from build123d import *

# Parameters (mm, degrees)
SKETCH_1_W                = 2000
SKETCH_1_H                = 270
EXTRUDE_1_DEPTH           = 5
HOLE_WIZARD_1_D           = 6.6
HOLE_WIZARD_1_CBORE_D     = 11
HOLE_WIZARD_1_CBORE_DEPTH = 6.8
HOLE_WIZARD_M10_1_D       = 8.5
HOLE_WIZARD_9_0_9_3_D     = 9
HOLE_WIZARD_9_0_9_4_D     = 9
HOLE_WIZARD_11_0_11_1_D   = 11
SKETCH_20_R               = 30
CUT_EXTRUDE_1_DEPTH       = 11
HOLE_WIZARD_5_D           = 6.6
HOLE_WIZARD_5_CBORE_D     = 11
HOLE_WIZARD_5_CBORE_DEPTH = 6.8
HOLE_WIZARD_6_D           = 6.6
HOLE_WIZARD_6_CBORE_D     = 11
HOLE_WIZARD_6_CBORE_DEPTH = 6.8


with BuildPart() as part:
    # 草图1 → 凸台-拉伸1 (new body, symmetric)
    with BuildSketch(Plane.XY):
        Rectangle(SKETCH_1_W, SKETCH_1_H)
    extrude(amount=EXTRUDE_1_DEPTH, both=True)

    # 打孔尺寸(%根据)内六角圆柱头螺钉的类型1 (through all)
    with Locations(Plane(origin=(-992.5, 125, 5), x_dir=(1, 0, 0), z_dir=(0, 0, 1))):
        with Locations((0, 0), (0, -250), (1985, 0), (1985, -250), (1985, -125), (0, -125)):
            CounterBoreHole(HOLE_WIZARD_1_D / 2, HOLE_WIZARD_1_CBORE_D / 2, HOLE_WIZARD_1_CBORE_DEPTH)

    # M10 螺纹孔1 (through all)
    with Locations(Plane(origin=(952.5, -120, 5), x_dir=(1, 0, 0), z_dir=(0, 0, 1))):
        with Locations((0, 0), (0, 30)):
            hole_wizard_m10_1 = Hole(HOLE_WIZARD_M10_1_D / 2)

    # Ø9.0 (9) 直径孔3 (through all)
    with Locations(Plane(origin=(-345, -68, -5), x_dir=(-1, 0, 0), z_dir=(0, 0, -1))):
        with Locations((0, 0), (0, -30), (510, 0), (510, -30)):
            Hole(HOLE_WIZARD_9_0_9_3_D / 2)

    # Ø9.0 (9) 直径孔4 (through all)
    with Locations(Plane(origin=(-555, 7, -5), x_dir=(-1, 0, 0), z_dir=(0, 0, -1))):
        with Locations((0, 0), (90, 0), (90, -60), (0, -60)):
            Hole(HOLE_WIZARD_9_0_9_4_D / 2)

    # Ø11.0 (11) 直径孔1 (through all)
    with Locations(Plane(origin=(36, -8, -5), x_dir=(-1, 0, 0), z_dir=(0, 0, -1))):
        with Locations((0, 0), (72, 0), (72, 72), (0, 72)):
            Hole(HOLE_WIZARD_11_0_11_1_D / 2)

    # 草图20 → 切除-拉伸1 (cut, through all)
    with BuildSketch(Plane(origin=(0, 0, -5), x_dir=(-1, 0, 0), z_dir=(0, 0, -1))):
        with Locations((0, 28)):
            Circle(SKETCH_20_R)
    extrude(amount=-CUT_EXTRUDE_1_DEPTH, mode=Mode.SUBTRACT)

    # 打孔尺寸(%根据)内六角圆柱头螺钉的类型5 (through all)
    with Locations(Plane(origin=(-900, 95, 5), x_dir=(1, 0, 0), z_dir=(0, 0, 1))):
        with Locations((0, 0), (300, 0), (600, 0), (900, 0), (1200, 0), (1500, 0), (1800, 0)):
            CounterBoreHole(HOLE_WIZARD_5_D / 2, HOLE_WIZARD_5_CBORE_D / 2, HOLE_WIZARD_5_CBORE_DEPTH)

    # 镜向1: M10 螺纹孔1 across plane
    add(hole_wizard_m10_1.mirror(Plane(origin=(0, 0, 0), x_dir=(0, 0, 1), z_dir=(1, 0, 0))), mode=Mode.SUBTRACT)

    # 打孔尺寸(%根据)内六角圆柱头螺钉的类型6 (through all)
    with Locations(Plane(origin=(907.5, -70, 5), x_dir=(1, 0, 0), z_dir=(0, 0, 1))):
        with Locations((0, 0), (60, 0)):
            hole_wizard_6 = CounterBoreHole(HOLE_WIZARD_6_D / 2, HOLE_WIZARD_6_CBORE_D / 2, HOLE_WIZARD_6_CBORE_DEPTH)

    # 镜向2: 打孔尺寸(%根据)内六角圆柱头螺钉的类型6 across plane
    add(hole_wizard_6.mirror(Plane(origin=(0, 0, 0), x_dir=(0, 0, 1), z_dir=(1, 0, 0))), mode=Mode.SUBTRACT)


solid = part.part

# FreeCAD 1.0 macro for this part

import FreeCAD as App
import Part
import Sketcher
Q = App.Units.Quantity


def add_polygon(sketch, points):
    """Adds a closed chain of lines whose ends are joined by coincident constraints."""
    first, n = sketch.GeometryCount, len(points)
    for a, b in zip(points, points[1:] + points[:1]):
        sketch.addGeometry(Part.LineSegment(App.Vector(*a, 0), App.Vector(*b, 0)), False)
    for i in range(n):
        sketch.addConstraint(Sketcher.Constraint("Coincident", first + i, 2, first + (i + 1) % n, 1))

doc = App.newDocument("Part")
params = doc.addObject("Spreadsheet::Sheet", "Params")
for row, (alias, value) in enumerate([
    ("sketch1_width", "2000 mm"),
    ("sketch1_height", "270 mm"),
    ("pad1_length", "10 mm"),
    ("sketch2_diameter", "6.6 mm"),
    ("hole_diameter", "6.6 mm"),
    ("hole_cbore_diameter", "11 mm"),
    ("hole_cbore_depth", "6.8 mm"),
    ("sketch3_diameter", "8.5 mm"),
    ("hole2_diameter", "8.5 mm"),
    ("sketch4_diameter", "9 mm"),
    ("hole3_diameter", "9 mm"),
    ("sketch5_diameter", "9 mm"),
    ("hole4_diameter", "9 mm"),
    ("sketch6_diameter", "11 mm"),
    ("hole5_diameter", "11 mm"),
    ("sketch7_diameter", "60 mm"),
    ("sketch8_diameter", "6.6 mm"),
    ("hole6_diameter", "6.6 mm"),
    ("hole6_cbore_diameter", "11 mm"),
    ("hole6_cbore_depth", "6.8 mm"),
    ("sketch9_diameter", "6.6 mm"),
    ("hole7_diameter", "6.6 mm"),
    ("hole7_cbore_diameter", "11 mm"),
    ("hole7_cbore_depth", "6.8 mm"),
], start=1):
    params.set(f"A{row}", alias)
    params.set(f"B{row}", "=" + value)
    params.setAlias(f"B{row}", alias)

body = doc.addObject("PartDesign::Body", "Body")

# Sketch on XY plane
sketch1 = doc.addObject("Sketcher::SketchObject", "Sketch")
body.addObject(sketch1)
sketch1.AttachmentSupport = (doc.XY_Plane, [""])
sketch1.MapMode = "FlatFace"
add_polygon(sketch1, [(-1000, 135), (-1000, -135), (1000, -135), (1000, 135)])  # lines 0-3
sketch1.addConstraint([
    Sketcher.Constraint("Vertical", 0),
    Sketcher.Constraint("Horizontal", 1),
    Sketcher.Constraint("Vertical", 2),
    Sketcher.Constraint("Horizontal", 3),
    Sketcher.Constraint("Symmetric", 0, 2, 2, 2, -1, 1),
    Sketcher.Constraint("DistanceX", 1, 1, 1, 2, Q("2000 mm")),
    Sketcher.Constraint("DistanceY", 0, 2, 0, 1, Q("270 mm")),
])
sketch1.setExpression("Constraints[9]", "Params.sketch1_width")
sketch1.setExpression("Constraints[10]", "Params.sketch1_height")
pad1 = doc.addObject("PartDesign::Pad", "Pad")
body.addObject(pad1)
pad1.Profile = sketch1
pad1.setExpression("Length", "Params.pad1_length")
pad1.Midplane = True

# Sketch on XY plane
sketch2 = doc.addObject("Sketcher::SketchObject", "Sketch001")
body.addObject(sketch2)
sketch2.AttachmentSupport = (doc.XY_Plane, [""])
sketch2.MapMode = "FlatFace"
sketch2.AttachmentOffset = App.Placement(App.Vector(0, 0, 5), App.Rotation())
sketch2.addGeometry([
    Part.Circle(App.Vector(-992.5, 125, 0), App.Vector(0, 0, 1), 3.3),  # 0
    Part.Circle(App.Vector(-992.5, -125, 0), App.Vector(0, 0, 1), 3.3),  # 1
    Part.Circle(App.Vector(992.5, 125, 0), App.Vector(0, 0, 1), 3.3),  # 2
    Part.Circle(App.Vector(992.5, -125, 0), App.Vector(0, 0, 1), 3.3),  # 3
    Part.Circle(App.Vector(992.5, 0, 0), App.Vector(0, 0, 1), 3.3),  # 4
    Part.Circle(App.Vector(-992.5, 0, 0), App.Vector(0, 0, 1), 3.3),  # 5
], False)
sketch2.addConstraint([
    Sketcher.Constraint("Equal", 0, 1),
    Sketcher.Constraint("Equal", 1, 2),
    Sketcher.Constraint("Equal", 2, 3),
    Sketcher.Constraint("Equal", 3, 4),
    Sketcher.Constraint("Equal", 4, 5),
    Sketcher.Constraint("Symmetric", 1, 3, 2, 3, -1, 1),
    Sketcher.Constraint("Symmetric", 0, 3, 3, 3, -1, 1),
    Sketcher.Constraint("Symmetric", 4, 3, 5, 3, -1, 1),
    Sketcher.Constraint("Symmetric", 0, 3, 2, 3, -2),
    Sketcher.Constraint("PointOnObject", 4, 3, -1),
    Sketcher.Constraint("Vertical", 3, 3, 4, 3),
    Sketcher.Constraint("Diameter", 0, Q("6.6 mm")),
    Sketcher.Constraint("DistanceY", -1, 1, 0, 3, Q("125 mm")),
    Sketcher.Constraint("DistanceX", 0, 3, 2, 3, Q("1985 mm")),
])
sketch2.setExpression("Constraints[11]", "Params.sketch2_diameter")
doc.recompute()
hole = doc.addObject("PartDesign::Hole", "Hole")
body.addObject(hole)
hole.Profile = sketch2
hole.ThreadType = "None"
hole.setExpression("Diameter", "Params.hole_diameter")
hole.DepthType = "ThroughAll"
hole.HoleCutType = "Counterbore"
hole.setExpression("HoleCutDiameter", "Params.hole_cbore_diameter")
hole.setExpression("HoleCutDepth", "Params.hole_cbore_depth")

# Sketch on XY plane
sketch3 = doc.addObject("Sketcher::SketchObject", "Sketch002")
body.addObject(sketch3)
sketch3.AttachmentSupport = (doc.XY_Plane, [""])
sketch3.MapMode = "FlatFace"
sketch3.AttachmentOffset = App.Placement(App.Vector(0, 0, 5), App.Rotation())
sketch3.addGeometry([
    Part.Circle(App.Vector(952.5, -120, 0), App.Vector(0, 0, 1), 4.2),
    Part.Circle(App.Vector(952.5, -90, 0), App.Vector(0, 0, 1), 4.2),
], False)
sketch3.addConstraint([
    Sketcher.Constraint("Equal", 0, 1),
    Sketcher.Constraint("Vertical", 0, 3, 1, 3),
    Sketcher.Constraint("Diameter", 0, Q("8.5 mm")),
    Sketcher.Constraint("DistanceY", 0, 3, -1, 1, Q("120 mm")),
    Sketcher.Constraint("DistanceY", 1, 3, -1, 1, Q("90 mm")),
    Sketcher.Constraint("DistanceX", -1, 1, 0, 3, Q("952.5 mm")),
])
sketch3.setExpression("Constraints[2]", "Params.sketch3_diameter")
doc.recompute()
hole2 = doc.addObject("PartDesign::Hole", "Hole001")
body.addObject(hole2)
hole2.Profile = sketch3
hole2.ThreadType = "None"
hole2.setExpression("Diameter", "Params.hole2_diameter")
hole2.DepthType = "ThroughAll"

# Sketch on XY plane
sketch4 = doc.addObject("Sketcher::SketchObject", "Sketch003")
body.addObject(sketch4)
sketch4.AttachmentSupport = (doc.XY_Plane, [""])
sketch4.MapMode = "FlatFace"
sketch4.AttachmentOffset = App.Placement(App.Vector(0, 0, -5), App.Rotation())
sketch4.addGeometry([
    Part.Circle(App.Vector(-345, -68, 0), App.Vector(0, 0, 1), 4.5),
    Part.Circle(App.Vector(-345, -98, 0), App.Vector(0, 0, 1), 4.5),
    Part.Circle(App.Vector(-855, -68, 0), App.Vector(0, 0, 1), 4.5),
    Part.Circle(App.Vector(-855, -98, 0), App.Vector(0, 0, 1), 4.5),
], False)
sketch4.addConstraint([
    Sketcher.Constraint("Equal", 0, 1),
    Sketcher.Constraint("Equal", 1, 2),
    Sketcher.Constraint("Equal", 2, 3),
    Sketcher.Constraint("Horizontal", 0, 3, 2, 3),
    Sketcher.Constraint("Horizontal", 1, 3, 3, 3),
    Sketcher.Constraint("Vertical", 0, 3, 1, 3),
    Sketcher.Constraint("Vertical", 2, 3, 3, 3),
    Sketcher.Constraint("Diameter", 0, Q("9 mm")),
    Sketcher.Constraint("DistanceX", 0, 3, -1, 1, Q("345 mm")),
    Sketcher.Constraint("DistanceY", 0, 3, -1, 1, Q("68 mm")),
    Sketcher.Constraint("DistanceY", 1, 3, -1, 1, Q("98 mm")),
    Sketcher.Constraint("DistanceX", 2, 3, -1, 1, Q("855 mm")),
])
sketch4.setExpression("Constraints[7]", "Params.sketch4_diameter")
doc.recompute()
hole3 = doc.addObject("PartDesign::Hole", "Hole002")
body.addObject(hole3)
hole3.Profile = sketch4
hole3.ThreadType = "None"
hole3.setExpression("Diameter", "Params.hole3_diameter")
hole3.DepthType = "ThroughAll"
hole3.Reversed = True

# Sketch on XY plane
sketch5 = doc.addObject("Sketcher::SketchObject", "Sketch004")
body.addObject(sketch5)
sketch5.AttachmentSupport = (doc.XY_Plane, [""])
sketch5.MapMode = "FlatFace"
sketch5.AttachmentOffset = App.Placement(App.Vector(0, 0, -5), App.Rotation())
sketch5.addGeometry([
    Part.Circle(App.Vector(-555, 7, 0), App.Vector(0, 0, 1), 4.5),
    Part.Circle(App.Vector(-645, 7, 0), App.Vector(0, 0, 1), 4.5),
    Part.Circle(App.Vector(-645, -53, 0), App.Vector(0, 0, 1), 4.5),
    Part.Circle(App.Vector(-555, -53, 0), App.Vector(0, 0, 1), 4.5),
], False)
sketch5.addConstraint([
    Sketcher.Constraint("Equal", 0, 1),
    Sketcher.Constraint("Equal", 1, 2),
    Sketcher.Constraint("Equal", 2, 3),
    Sketcher.Constraint("Horizontal", 0, 3, 1, 3),
    Sketcher.Constraint("Horizontal", 2, 3, 3, 3),
    Sketcher.Constraint("Vertical", 1, 3, 2, 3),
    Sketcher.Constraint("Vertical", 0, 3, 3, 3),
    Sketcher.Constraint("Diameter", 0, Q("9 mm")),
    Sketcher.Constraint("DistanceX", 0, 3, -1, 1, Q("555 mm")),
    Sketcher.Constraint("DistanceY", -1, 1, 0, 3, Q("7 mm")),
    Sketcher.Constraint("DistanceX", 1, 3, -1, 1, Q("645 mm")),
    Sketcher.Constraint("DistanceY", 2, 3, -1, 1, Q("53 mm")),
])
sketch5.setExpression("Constraints[7]", "Params.sketch5_diameter")
doc.recompute()
hole4 = doc.addObject("PartDesign::Hole", "Hole003")
body.addObject(hole4)
hole4.Profile = sketch5
hole4.ThreadType = "None"
hole4.setExpression("Diameter", "Params.hole4_diameter")
hole4.DepthType = "ThroughAll"
hole4.Reversed = True

# Sketch on XY plane
sketch6 = doc.addObject("Sketcher::SketchObject", "Sketch005")
body.addObject(sketch6)
sketch6.AttachmentSupport = (doc.XY_Plane, [""])
sketch6.MapMode = "FlatFace"
sketch6.AttachmentOffset = App.Placement(App.Vector(0, 0, -5), App.Rotation())
sketch6.addGeometry([
    Part.Circle(App.Vector(36, -8, 0), App.Vector(0, 0, 1), 6),
    Part.Circle(App.Vector(-36, -8, 0), App.Vector(0, 0, 1), 6),
    Part.Circle(App.Vector(-36, 64, 0), App.Vector(0, 0, 1), 6),
    Part.Circle(App.Vector(36, 64, 0), App.Vector(0, 0, 1), 6),
], False)
sketch6.addConstraint([
    Sketcher.Constraint("Equal", 0, 1),
    Sketcher.Constraint("Equal", 1, 2),
    Sketcher.Constraint("Equal", 2, 3),
    Sketcher.Constraint("Symmetric", 0, 3, 1, 3, -2),
    Sketcher.Constraint("Symmetric", 2, 3, 3, 3, -2),
    Sketcher.Constraint("Vertical", 1, 3, 2, 3),
    Sketcher.Constraint("Diameter", 0, Q("11 mm")),
    Sketcher.Constraint("DistanceX", -1, 1, 0, 3, Q("36 mm")),
    Sketcher.Constraint("DistanceY", 0, 3, -1, 1, Q("8 mm")),
    Sketcher.Constraint("DistanceY", -1, 1, 2, 3, Q("64 mm")),
])
sketch6.setExpression("Constraints[6]", "Params.sketch6_diameter")
doc.recompute()
hole5 = doc.addObject("PartDesign::Hole", "Hole004")
body.addObject(hole5)
hole5.Profile = sketch6
hole5.ThreadType = "None"
hole5.setExpression("Diameter", "Params.hole5_diameter")
hole5.DepthType = "ThroughAll"
hole5.Reversed = True

# Sketch on XY plane
sketch7 = doc.addObject("Sketcher::SketchObject", "Sketch006")
body.addObject(sketch7)
sketch7.AttachmentSupport = (doc.XY_Plane, [""])
sketch7.MapMode = "FlatFace"
sketch7.AttachmentOffset = App.Placement(App.Vector(0, 0, -5), App.Rotation())
sketch7.addGeometry(Part.Circle(App.Vector(0, 28, 0), App.Vector(0, 0, 1), 30), False)
sketch7.addConstraint([
    Sketcher.Constraint("PointOnObject", 0, 3, -2),
    Sketcher.Constraint("Diameter", 0, Q("60 mm")),
    Sketcher.Constraint("DistanceY", -1, 1, 0, 3, Q("28 mm")),
])
sketch7.setExpression("Constraints[1]", "Params.sketch7_diameter")
pocket1 = doc.addObject("PartDesign::Pocket", "Pocket")
body.addObject(pocket1)
pocket1.Profile = sketch7
pocket1.Type = "ThroughAll"
pocket1.Reversed = True

# Sketch on XY plane
sketch8 = doc.addObject("Sketcher::SketchObject", "Sketch007")
body.addObject(sketch8)
sketch8.AttachmentSupport = (doc.XY_Plane, [""])
sketch8.MapMode = "FlatFace"
sketch8.AttachmentOffset = App.Placement(App.Vector(0, 0, 5), App.Rotation())
sketch8.addGeometry([
    Part.Circle(App.Vector(-900, 95, 0), App.Vector(0, 0, 1), 3.3),  # 0
    Part.Circle(App.Vector(-600, 95, 0), App.Vector(0, 0, 1), 3.3),  # 1
    Part.Circle(App.Vector(-300, 95, 0), App.Vector(0, 0, 1), 3.3),  # 2
    Part.Circle(App.Vector(0, 95, 0), App.Vector(0, 0, 1), 3.3),  # 3
    Part.Circle(App.Vector(300, 95, 0), App.Vector(0, 0, 1), 3.3),  # 4
    Part.Circle(App.Vector(600, 95, 0), App.Vector(0, 0, 1), 3.3),  # 5
    Part.Circle(App.Vector(900, 95, 0), App.Vector(0, 0, 1), 3.3),  # 6
], False)
sketch8.addConstraint([
    Sketcher.Constraint("Equal", 0, 1),
    Sketcher.Constraint("Equal", 1, 2),
    Sketcher.Constraint("Equal", 2, 3),
    Sketcher.Constraint("Equal", 3, 4),
    Sketcher.Constraint("Equal", 4, 5),
    Sketcher.Constraint("Equal", 5, 6),
    Sketcher.Constraint("Symmetric", 2, 3, 4, 3, -2),
    Sketcher.Constraint("Symmetric", 1, 3, 5, 3, -2),
    Sketcher.Constraint("Symmetric", 0, 3, 6, 3, -2),
    Sketcher.Constraint("PointOnObject", 3, 3, -2),
    Sketcher.Constraint("Horizontal", 0, 3, 1, 3),
    Sketcher.Constraint("Horizontal", 1, 3, 2, 3),
    Sketcher.Constraint("Horizontal", 2, 3, 3, 3),
    Sketcher.Constraint("Diameter", 0, Q("6.6 mm")),
    Sketcher.Constraint("DistanceX", 0, 3, -1, 1, Q("900 mm")),
    Sketcher.Constraint("DistanceY", -1, 1, 0, 3, Q("95 mm")),
    Sketcher.Constraint("DistanceX", 1, 3, -1, 1, Q("600 mm")),
    Sketcher.Constraint("DistanceX", 2, 3, -1, 1, Q("300 mm")),
])
sketch8.setExpression("Constraints[13]", "Params.sketch8_diameter")
doc.recompute()
hole6 = doc.addObject("PartDesign::Hole", "Hole005")
body.addObject(hole6)
hole6.Profile = sketch8
hole6.ThreadType = "None"
hole6.setExpression("Diameter", "Params.hole6_diameter")
hole6.DepthType = "ThroughAll"
hole6.HoleCutType = "Counterbore"
hole6.setExpression("HoleCutDiameter", "Params.hole6_cbore_diameter")
hole6.setExpression("HoleCutDepth", "Params.hole6_cbore_depth")
doc.recompute()

mirrored = doc.addObject("PartDesign::Mirrored", "Mirrored")
body.addObject(mirrored)
mirrored.Originals = [hole2]
mirrored.MirrorPlane = (doc.YZ_Plane, [""])
body.Tip = mirrored

# Sketch on XY plane
sketch9 = doc.addObject("Sketcher::SketchObject", "Sketch008")
body.addObject(sketch9)
sketch9.AttachmentSupport = (doc.XY_Plane, [""])
sketch9.MapMode = "FlatFace"
sketch9.AttachmentOffset = App.Placement(App.Vector(0, 0, 5), App.Rotation())
sketch9.addGeometry([
    Part.Circle(App.Vector(907.5, -70, 0), App.Vector(0, 0, 1), 3.3),
    Part.Circle(App.Vector(967.5, -70, 0), App.Vector(0, 0, 1), 3.3),
], False)
sketch9.addConstraint([
    Sketcher.Constraint("Equal", 0, 1),
    Sketcher.Constraint("Horizontal", 0, 3, 1, 3),
    Sketcher.Constraint("Diameter", 0, Q("6.6 mm")),
    Sketcher.Constraint("DistanceY", 0, 3, -1, 1, Q("70 mm")),
    Sketcher.Constraint("DistanceX", 0, 3, 1, 3, Q("60 mm")),
    Sketcher.Constraint("DistanceX", -1, 1, 0, 3, Q("907.5 mm")),
])
sketch9.setExpression("Constraints[2]", "Params.sketch9_diameter")
doc.recompute()
hole7 = doc.addObject("PartDesign::Hole", "Hole006")
body.addObject(hole7)
hole7.Profile = sketch9
hole7.ThreadType = "None"
hole7.setExpression("Diameter", "Params.hole7_diameter")
hole7.DepthType = "ThroughAll"
hole7.HoleCutType = "Counterbore"
hole7.setExpression("HoleCutDiameter", "Params.hole7_cbore_diameter")
hole7.setExpression("HoleCutDepth", "Params.hole7_cbore_depth")
doc.recompute()

mirrored2 = doc.addObject("PartDesign::Mirrored", "Mirrored001")
body.addObject(mirrored2)
mirrored2.Originals = [hole7]
mirrored2.MirrorPlane = (doc.YZ_Plane, [""])
body.Tip = mirrored2

doc.recompute()
